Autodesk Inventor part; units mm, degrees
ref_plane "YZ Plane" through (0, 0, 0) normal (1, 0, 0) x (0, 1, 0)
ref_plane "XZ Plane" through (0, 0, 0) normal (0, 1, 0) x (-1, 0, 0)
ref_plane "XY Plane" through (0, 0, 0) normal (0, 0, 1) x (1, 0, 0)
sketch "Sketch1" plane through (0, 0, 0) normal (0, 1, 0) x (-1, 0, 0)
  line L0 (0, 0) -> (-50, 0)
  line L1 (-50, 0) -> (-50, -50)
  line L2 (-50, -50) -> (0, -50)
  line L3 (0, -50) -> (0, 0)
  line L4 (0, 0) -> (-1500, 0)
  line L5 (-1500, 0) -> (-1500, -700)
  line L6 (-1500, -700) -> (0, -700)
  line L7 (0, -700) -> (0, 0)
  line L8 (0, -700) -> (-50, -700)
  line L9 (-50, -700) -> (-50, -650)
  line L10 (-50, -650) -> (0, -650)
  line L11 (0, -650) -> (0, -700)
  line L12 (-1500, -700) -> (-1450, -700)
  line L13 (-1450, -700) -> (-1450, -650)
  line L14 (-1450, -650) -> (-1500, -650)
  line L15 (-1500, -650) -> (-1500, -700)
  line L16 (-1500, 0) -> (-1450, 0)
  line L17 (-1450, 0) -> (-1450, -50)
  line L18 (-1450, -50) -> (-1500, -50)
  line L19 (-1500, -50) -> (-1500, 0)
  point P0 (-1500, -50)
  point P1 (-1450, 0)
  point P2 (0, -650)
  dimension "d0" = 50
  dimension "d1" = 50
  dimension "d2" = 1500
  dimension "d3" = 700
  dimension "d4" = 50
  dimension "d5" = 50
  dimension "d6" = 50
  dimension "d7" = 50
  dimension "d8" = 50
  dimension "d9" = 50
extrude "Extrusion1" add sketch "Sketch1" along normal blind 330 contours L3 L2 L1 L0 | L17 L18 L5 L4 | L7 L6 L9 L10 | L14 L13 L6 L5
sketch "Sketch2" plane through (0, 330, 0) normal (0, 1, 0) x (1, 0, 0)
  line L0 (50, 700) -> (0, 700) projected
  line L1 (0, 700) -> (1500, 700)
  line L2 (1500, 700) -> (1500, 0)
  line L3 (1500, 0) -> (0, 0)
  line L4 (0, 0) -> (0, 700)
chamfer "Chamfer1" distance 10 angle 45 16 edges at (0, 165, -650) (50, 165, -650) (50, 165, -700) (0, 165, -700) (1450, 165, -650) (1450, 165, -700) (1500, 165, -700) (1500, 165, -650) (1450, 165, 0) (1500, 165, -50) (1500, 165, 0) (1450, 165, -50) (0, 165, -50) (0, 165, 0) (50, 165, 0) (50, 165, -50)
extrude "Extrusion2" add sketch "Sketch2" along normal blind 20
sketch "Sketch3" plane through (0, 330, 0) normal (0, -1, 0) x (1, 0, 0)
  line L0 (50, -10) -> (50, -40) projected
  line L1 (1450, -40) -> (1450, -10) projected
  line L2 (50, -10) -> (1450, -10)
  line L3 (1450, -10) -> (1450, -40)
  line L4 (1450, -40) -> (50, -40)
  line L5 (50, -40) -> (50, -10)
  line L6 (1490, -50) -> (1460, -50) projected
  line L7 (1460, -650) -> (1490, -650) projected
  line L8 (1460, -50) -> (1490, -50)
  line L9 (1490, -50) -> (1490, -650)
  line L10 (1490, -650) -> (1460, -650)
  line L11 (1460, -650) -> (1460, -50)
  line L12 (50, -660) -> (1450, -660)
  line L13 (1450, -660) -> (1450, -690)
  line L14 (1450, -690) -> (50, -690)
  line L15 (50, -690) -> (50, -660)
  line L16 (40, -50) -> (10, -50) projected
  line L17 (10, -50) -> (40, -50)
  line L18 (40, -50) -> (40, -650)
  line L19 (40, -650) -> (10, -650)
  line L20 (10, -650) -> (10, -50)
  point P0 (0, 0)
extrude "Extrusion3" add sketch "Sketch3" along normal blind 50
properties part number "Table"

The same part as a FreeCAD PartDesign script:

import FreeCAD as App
import Part
import Sketcher

V = App.Vector


def edges_at(feature, points):
    """Names of the edges that pass closest to the given points."""
    edges = feature.Shape.Edges
    near = lambda p: min(range(len(edges)), key=lambda i: edges[i].distToShape(Part.Vertex(*p))[0])
    return sorted({f"Edge{near(p) + 1}" for p in points})


def add_polygon(sketch, points):
    """Adds a closed chain of lines whose ends are joined by coincident constraints."""
    first, n = sketch.GeometryCount, len(points)
    for a, b in zip(points, points[1:] + points[:1]):
        sketch.addGeometry(Part.LineSegment(App.Vector(*a, 0), App.Vector(*b, 0)), False)
    for i in range(n):
        sketch.addConstraint(Sketcher.Constraint("Coincident", first + i, 2, first + (i + 1) % n, 1))

doc = App.newDocument("Part")
body = doc.addObject("PartDesign::Body", "Body")
body.AllowCompound = True

# Sketch on XZ plane
sketch1 = body.newObject("Sketcher::SketchObject", "Sketch")
sketch1.AttachmentSupport = (doc.getObject("XZ_Plane"), [""])
sketch1.MapMode = "FlatFace"
add_polygon(sketch1, [(0, -50), (0, 0), (50, 0), (50, -50)])  # lines 0-3
add_polygon(sketch1, [(1450, -50), (1450, 0), (1500, 0), (1500, -50)])  # lines 4-7
add_polygon(sketch1, [(0, -700), (0, -650), (50, -650), (50, -700)])  # lines 8-11
add_polygon(sketch1, [(1450, -650), (1500, -650), (1500, -700), (1450, -700)])  # lines 12-15
sketch1.addConstraint([
    Sketcher.Constraint("Vertical", 0),
    Sketcher.Constraint("Horizontal", 1),
    Sketcher.Constraint("Vertical", 2),
    Sketcher.Constraint("Horizontal", 3),
    Sketcher.Constraint("Vertical", 4),
    Sketcher.Constraint("Horizontal", 5),
    Sketcher.Constraint("Vertical", 6),
    Sketcher.Constraint("Horizontal", 7),
    Sketcher.Constraint("Vertical", 8),
    Sketcher.Constraint("Horizontal", 9),
    Sketcher.Constraint("Vertical", 10),
    Sketcher.Constraint("Horizontal", 11),
    Sketcher.Constraint("Horizontal", 12),
    Sketcher.Constraint("Vertical", 13),
    Sketcher.Constraint("Horizontal", 14),
    Sketcher.Constraint("Vertical", 15),
    Sketcher.Constraint("Coincident", 0, 2, -1, 1),
    Sketcher.Constraint("PointOnObject", 4, 2, -1),
    Sketcher.Constraint("PointOnObject", 8, 2, -2),
    Sketcher.Constraint("Horizontal", 3, 2, 6, 2),
    Sketcher.Constraint("Horizontal", 9, 2, 12, 2),
    Sketcher.Constraint("Horizontal", 11, 2, 13, 2),
    Sketcher.Constraint("Vertical", 2, 2, 9, 2),
    Sketcher.Constraint("Vertical", 6, 2, 12, 2),
    Sketcher.Constraint("Vertical", 7, 2, 14, 2),
    Sketcher.Constraint("Equal", 3, 5),
    Sketcher.Constraint("Equal", 14, 0),
    Sketcher.Constraint("Equal", 6, 8),
    Sketcher.Constraint("DistanceX", 1, 1, 1, 2, 50.0),
    Sketcher.Constraint("DistanceX", -1, 1, 5, 2, 1500.0),
    Sketcher.Constraint("DistanceY", 10, 2, -1, 1, 700.0),
])
pad1 = body.newObject("PartDesign::Pad", "Pad")
pad1.Profile = sketch1
pad1.Length = 330
pad1.Reversed = True
doc.recompute()

chamfer = body.newObject("PartDesign::Chamfer", "Chamfer")
chamfer.Base = (pad1, edges_at(pad1, [
    (0, 165, -650),
    (50, 165, -650),
    (50, 165, -700),
    (0, 165, -700),
    (1450, 165, -650),
    (1450, 165, -700),
    (1500, 165, -700),
    (1500, 165, -650),
    (1450, 165, 0),
    (1500, 165, -50),
    (1500, 165, 0),
    (1450, 165, -50),
    (0, 165, -50),
    (0, 165, 0),
    (50, 165, 0),
    (50, 165, -50),
]))
chamfer.Size = 10

# Sketch on XZ plane
sketch2 = body.newObject("Sketcher::SketchObject", "Sketch001")
sketch2.AttachmentSupport = (doc.getObject("XZ_Plane"), [""])
sketch2.MapMode = "FlatFace"
sketch2.AttachmentOffset = App.Placement(V(0, 0, -330), App.Rotation())
add_polygon(sketch2, [(1500, -700), (0, -700), (0, 0), (1500, 0)])  # lines 0-3
sketch2.addConstraint([
    Sketcher.Constraint("Horizontal", 0),
    Sketcher.Constraint("Vertical", 1),
    Sketcher.Constraint("Horizontal", 2),
    Sketcher.Constraint("Vertical", 3),
    Sketcher.Constraint("Coincident", 1, 2, -1, 1),
    Sketcher.Constraint("DistanceX", 0, 2, 0, 1, 1500.0),
    Sketcher.Constraint("DistanceY", 1, 1, 1, 2, 700.0),
])
pad2 = body.newObject("PartDesign::Pad", "Pad001")
pad2.Profile = sketch2
pad2.Length = 20
pad2.Reversed = True

# Sketch on XZ plane
sketch3 = body.newObject("Sketcher::SketchObject", "Sketch002")
sketch3.AttachmentSupport = (doc.getObject("XZ_Plane"), [""])
sketch3.MapMode = "FlatFace"
sketch3.AttachmentOffset = App.Placement(V(0, 0, -330), App.Rotation())
add_polygon(sketch3, [(1450, -10), (50, -10), (50, -40), (1450, -40)])  # lines 0-3
add_polygon(sketch3, [(1490, -650), (1490, -50), (1460, -50), (1460, -650)])  # lines 4-7
add_polygon(sketch3, [(1450, -660), (50, -660), (50, -690), (1450, -690)])  # lines 8-11
add_polygon(sketch3, [(40, -650), (40, -50), (10, -50), (10, -650)])  # lines 12-15
sketch3.addConstraint([
    Sketcher.Constraint("Horizontal", 0),
    Sketcher.Constraint("Vertical", 1),
    Sketcher.Constraint("Horizontal", 2),
    Sketcher.Constraint("Vertical", 3),
    Sketcher.Constraint("Vertical", 4),
    Sketcher.Constraint("Horizontal", 5),
    Sketcher.Constraint("Vertical", 6),
    Sketcher.Constraint("Horizontal", 7),
    Sketcher.Constraint("Horizontal", 8),
    Sketcher.Constraint("Vertical", 9),
    Sketcher.Constraint("Horizontal", 10),
    Sketcher.Constraint("Vertical", 11),
    Sketcher.Constraint("Vertical", 12),
    Sketcher.Constraint("Horizontal", 13),
    Sketcher.Constraint("Vertical", 14),
    Sketcher.Constraint("Horizontal", 15),
    Sketcher.Constraint("Horizontal", 5, 2, 12, 2),
    Sketcher.Constraint("Horizontal", 7, 2, 14, 2),
    Sketcher.Constraint("Vertical", 1, 2, 8, 2),
    Sketcher.Constraint("Vertical", 3, 2, 10, 2),
    Sketcher.Constraint("Equal", 7, 13),
    Sketcher.Constraint("Equal", 15, 1),
    Sketcher.Constraint("Equal", 3, 9),
    Sketcher.Constraint("DistanceX", 0, 2, 0, 1, 1400.0),
    Sketcher.Constraint("DistanceX", 5, 2, 5, 1, 30.0),
    Sketcher.Constraint("DistanceY", 4, 1, 4, 2, 600.0),
    Sketcher.Constraint("DistanceX", -1, 1, 0, 2, 50.0),
    Sketcher.Constraint("DistanceY", 0, 2, -1, 1, 10.0),
    Sketcher.Constraint("DistanceX", -1, 1, 4, 2, 1490.0),
    Sketcher.Constraint("DistanceY", 4, 2, -1, 1, 50.0),
    Sketcher.Constraint("DistanceY", 8, 2, -1, 1, 660.0),
    Sketcher.Constraint("DistanceX", -1, 1, 12, 2, 40.0),
])
pad3 = body.newObject("PartDesign::Pad", "Pad002")
pad3.Profile = sketch3
pad3.Length = 50

doc.recompute()
